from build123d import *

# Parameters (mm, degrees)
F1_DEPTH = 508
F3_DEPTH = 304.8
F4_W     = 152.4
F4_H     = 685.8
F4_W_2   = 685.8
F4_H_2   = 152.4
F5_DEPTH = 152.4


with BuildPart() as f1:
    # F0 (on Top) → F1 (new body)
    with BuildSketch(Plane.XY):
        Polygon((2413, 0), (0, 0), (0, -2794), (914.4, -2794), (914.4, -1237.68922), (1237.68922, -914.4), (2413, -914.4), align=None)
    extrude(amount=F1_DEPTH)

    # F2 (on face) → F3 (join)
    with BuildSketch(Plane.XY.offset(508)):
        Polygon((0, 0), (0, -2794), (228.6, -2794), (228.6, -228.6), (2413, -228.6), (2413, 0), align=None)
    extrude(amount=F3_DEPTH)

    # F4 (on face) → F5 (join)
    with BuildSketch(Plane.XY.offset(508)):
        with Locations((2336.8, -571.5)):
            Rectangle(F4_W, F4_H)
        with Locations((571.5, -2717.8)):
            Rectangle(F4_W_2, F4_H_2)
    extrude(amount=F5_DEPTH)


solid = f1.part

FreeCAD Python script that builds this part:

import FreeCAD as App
import Part
import Sketcher
Q = App.Units.Quantity

doc = App.newDocument("Part")
body = doc.addObject("PartDesign::Body", "Body")

# Sketch on XY plane
sketch1 = doc.addObject("Sketcher::SketchObject", "Sketch")
body.addObject(sketch1)
sketch1.AttachmentSupport = (doc.XY_Plane, [""])
sketch1.MapMode = "FlatFace"
sketch1.addGeometry([
    Part.LineSegment(App.Vector(2413, 0, 0), App.Vector(0, 0, 0)),  # 0
    Part.LineSegment(App.Vector(0, 0, 0), App.Vector(0, -2794, 0)),  # 1
    Part.LineSegment(App.Vector(0, -2794, 0), App.Vector(914, -2794, 0)),  # 2
    Part.LineSegment(App.Vector(914, -2794, 0), App.Vector(914, -1238, 0)),  # 3
    Part.LineSegment(App.Vector(914, -1238, 0), App.Vector(1238, -914, 0)),  # 4
    Part.LineSegment(App.Vector(1238, -914, 0), App.Vector(2413, -914, 0)),  # 5
    Part.LineSegment(App.Vector(2413, -914, 0), App.Vector(2413, 0, 0)),  # 6
], False)
sketch1.addConstraint([
    Sketcher.Constraint("Coincident", 0, 2, 1, 1),
    Sketcher.Constraint("Coincident", 1, 2, 2, 1),
    Sketcher.Constraint("Coincident", 2, 2, 3, 1),
    Sketcher.Constraint("Coincident", 3, 2, 4, 1),
    Sketcher.Constraint("Coincident", 4, 2, 5, 1),
    Sketcher.Constraint("Coincident", 5, 2, 6, 1),
    Sketcher.Constraint("Coincident", 6, 2, 0, 1),
    Sketcher.Constraint("Horizontal", 0),
    Sketcher.Constraint("Vertical", 1),
    Sketcher.Constraint("Horizontal", 2),
    Sketcher.Constraint("Vertical", 3),
    Sketcher.Constraint("Horizontal", 5),
    Sketcher.Constraint("Vertical", 6),
    Sketcher.Constraint("Coincident", 0, 2, -1, 1),
    Sketcher.Constraint("Equal", 2, 6),
    Sketcher.Constraint("DistanceX", 0, 2, 0, 1, Q("95 in")),
    Sketcher.Constraint("DistanceX", 2, 1, 2, 2, Q("36 in")),
    Sketcher.Constraint("DistanceY", 1, 2, 1, 1, Q("110 in")),
    Sketcher.Constraint("Distance", 4, Q("18 in")),
    Sketcher.Constraint("Angle", 4, Q("45 deg")),
])
pad1 = doc.addObject("PartDesign::Pad", "Pad")
body.addObject(pad1)
pad1.Profile = sketch1
pad1.Length = Q("20 in")

# Sketch on XY plane
sketch2 = doc.addObject("Sketcher::SketchObject", "Sketch001")
body.addObject(sketch2)
sketch2.AttachmentSupport = (doc.XY_Plane, [""])
sketch2.MapMode = "FlatFace"
sketch2.AttachmentOffset = App.Placement(App.Vector(0, 0, 20 * 25.4), App.Rotation())
sketch2.addGeometry([
    Part.LineSegment(App.Vector(0, 0, 0), App.Vector(0, -2794, 0)),  # 0
    Part.LineSegment(App.Vector(0, -2794, 0), App.Vector(229, -2794, 0)),  # 1
    Part.LineSegment(App.Vector(229, -2794, 0), App.Vector(229, -229, 0)),  # 2
    Part.LineSegment(App.Vector(229, -229, 0), App.Vector(2413, -229, 0)),  # 3
    Part.LineSegment(App.Vector(2413, -229, 0), App.Vector(2413, 0, 0)),  # 4
    Part.LineSegment(App.Vector(2413, 0, 0), App.Vector(0, 0, 0)),  # 5
], False)
sketch2.addConstraint([
    Sketcher.Constraint("Coincident", 0, 2, 1, 1),
    Sketcher.Constraint("Coincident", 1, 2, 2, 1),
    Sketcher.Constraint("Coincident", 2, 2, 3, 1),
    Sketcher.Constraint("Coincident", 3, 2, 4, 1),
    Sketcher.Constraint("Coincident", 4, 2, 5, 1),
    Sketcher.Constraint("Coincident", 5, 2, 0, 1),
    Sketcher.Constraint("Vertical", 0),
    Sketcher.Constraint("Horizontal", 1),
    Sketcher.Constraint("Vertical", 2),
    Sketcher.Constraint("Horizontal", 3),
    Sketcher.Constraint("Vertical", 4),
    Sketcher.Constraint("Horizontal", 5),
    Sketcher.Constraint("Coincident", 5, 2, -1, 1),
    Sketcher.Constraint("Equal", 1, 4),
    Sketcher.Constraint("DistanceX", 1, 1, 1, 2, Q("9 in")),
    Sketcher.Constraint("DistanceX", 3, 1, 3, 2, Q("86 in")),
    Sketcher.Constraint("DistanceY", 0, 2, 0, 1, Q("110 in")),
])
pad2 = doc.addObject("PartDesign::Pad", "Pad001")
body.addObject(pad2)
pad2.Profile = sketch2
pad2.Length = Q("12 in")

# Sketch on XY plane
sketch3 = doc.addObject("Sketcher::SketchObject", "Sketch002")
body.addObject(sketch3)
sketch3.AttachmentSupport = (doc.XY_Plane, [""])
sketch3.MapMode = "FlatFace"
sketch3.AttachmentOffset = App.Placement(App.Vector(0, 0, 20 * 25.4), App.Rotation())
sketch3.addGeometry([
    Part.LineSegment(App.Vector(2261, -229, 0), App.Vector(2261, -914, 0)),  # 0
    Part.LineSegment(App.Vector(2261, -914, 0), App.Vector(2413, -914, 0)),  # 1
    Part.LineSegment(App.Vector(2413, -914, 0), App.Vector(2413, -229, 0)),  # 2
    Part.LineSegment(App.Vector(2413, -229, 0), App.Vector(2261, -229, 0)),  # 3
    Part.LineSegment(App.Vector(229, -2642, 0), App.Vector(229, -2794, 0)),  # 4
    Part.LineSegment(App.Vector(229, -2794, 0), App.Vector(914, -2794, 0)),  # 5
    Part.LineSegment(App.Vector(914, -2794, 0), App.Vector(914, -2642, 0)),  # 6
    Part.LineSegment(App.Vector(914, -2642, 0), App.Vector(229, -2642, 0)),  # 7
], False)
sketch3.addConstraint([
    Sketcher.Constraint("Coincident", 0, 2, 1, 1),
    Sketcher.Constraint("Coincident", 1, 2, 2, 1),
    Sketcher.Constraint("Coincident", 2, 2, 3, 1),
    Sketcher.Constraint("Coincident", 3, 2, 0, 1),
    Sketcher.Constraint("Coincident", 4, 2, 5, 1),
    Sketcher.Constraint("Coincident", 5, 2, 6, 1),
    Sketcher.Constraint("Coincident", 6, 2, 7, 1),
    Sketcher.Constraint("Coincident", 7, 2, 4, 1),
    Sketcher.Constraint("Vertical", 0),
    Sketcher.Constraint("Horizontal", 1),
    Sketcher.Constraint("Vertical", 2),
    Sketcher.Constraint("Horizontal", 3),
    Sketcher.Constraint("Vertical", 4),
    Sketcher.Constraint("Horizontal", 5),
    Sketcher.Constraint("Vertical", 6),
    Sketcher.Constraint("Horizontal", 7),
    Sketcher.Constraint("Equal", 7, 0),
    Sketcher.Constraint("Equal", 3, 4),
    Sketcher.Constraint("DistanceX", 1, 1, 1, 2, Q("6 in")),
    Sketcher.Constraint("DistanceX", 5, 1, 5, 2, Q("27 in")),
    Sketcher.Constraint("DistanceX", -1, 1, 0, 2, Q("89 in")),
    Sketcher.Constraint("DistanceY", 0, 2, -1, 1, Q("36 in")),
    Sketcher.Constraint("DistanceX", -1, 1, 4, 2, Q("9 in")),
    Sketcher.Constraint("DistanceY", 4, 2, -1, 1, Q("110 in")),
])
pad3 = doc.addObject("PartDesign::Pad", "Pad002")
body.addObject(pad3)
pad3.Profile = sketch3
pad3.Length = Q("6 in")

doc.recompute()
